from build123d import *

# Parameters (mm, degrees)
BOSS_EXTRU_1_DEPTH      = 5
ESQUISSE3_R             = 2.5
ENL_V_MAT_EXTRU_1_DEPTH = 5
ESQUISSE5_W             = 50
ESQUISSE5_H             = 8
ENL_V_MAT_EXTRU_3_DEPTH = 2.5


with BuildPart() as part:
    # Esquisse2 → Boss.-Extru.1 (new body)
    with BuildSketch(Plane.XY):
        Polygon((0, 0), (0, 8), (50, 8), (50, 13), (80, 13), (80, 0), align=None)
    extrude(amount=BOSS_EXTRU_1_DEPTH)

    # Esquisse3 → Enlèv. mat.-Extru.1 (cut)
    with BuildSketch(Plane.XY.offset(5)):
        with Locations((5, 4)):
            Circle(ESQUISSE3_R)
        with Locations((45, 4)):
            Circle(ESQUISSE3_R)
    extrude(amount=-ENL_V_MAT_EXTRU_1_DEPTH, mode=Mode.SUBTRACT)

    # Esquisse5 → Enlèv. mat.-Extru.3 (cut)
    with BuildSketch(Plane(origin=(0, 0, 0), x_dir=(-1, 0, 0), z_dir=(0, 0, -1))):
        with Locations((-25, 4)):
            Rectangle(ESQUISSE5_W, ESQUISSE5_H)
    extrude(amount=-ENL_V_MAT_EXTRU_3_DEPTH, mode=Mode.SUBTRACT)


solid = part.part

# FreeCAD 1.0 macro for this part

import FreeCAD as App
import Part
import Sketcher
from FreeCAD import Vector
Q = App.Units.Quantity

doc = App.newDocument("Part")
body = doc.addObject("PartDesign::Body", "Body")

sketch1 = body.newObject("Sketcher::SketchObject", "Sketch")
sketch1.AttachmentSupport = (doc.getObject("XY_Plane"), [""])
sketch1.MapMode = "FlatFace"
sketch1.addGeometry(Part.LineSegment(Vector(0, 8, 0), Vector(0, 0, 0)), False)
sketch1.addGeometry(Part.LineSegment(Vector(0, 0, 0), Vector(80, 0, 0)), False)
sketch1.addGeometry(Part.LineSegment(Vector(80, 0, 0), Vector(80, 13, 0)), False)
sketch1.addGeometry(Part.LineSegment(Vector(80, 13, 0), Vector(50, 13, 0)), False)
sketch1.addGeometry(Part.LineSegment(Vector(50, 13, 0), Vector(50, 8, 0)), False)
sketch1.addGeometry(Part.LineSegment(Vector(50, 8, 0), Vector(0, 8, 0)), False)
sketch1.addConstraint(Sketcher.Constraint("Coincident", 0, 2, 1, 1))
sketch1.addConstraint(Sketcher.Constraint("Coincident", 1, 2, 2, 1))
sketch1.addConstraint(Sketcher.Constraint("Coincident", 2, 2, 3, 1))
sketch1.addConstraint(Sketcher.Constraint("Coincident", 3, 2, 4, 1))
sketch1.addConstraint(Sketcher.Constraint("Coincident", 4, 2, 5, 1))
sketch1.addConstraint(Sketcher.Constraint("Coincident", 5, 2, 0, 1))
sketch1.addConstraint(Sketcher.Constraint("Vertical", 0))
sketch1.addConstraint(Sketcher.Constraint("Horizontal", 1))
sketch1.addConstraint(Sketcher.Constraint("Vertical", 2))
sketch1.addConstraint(Sketcher.Constraint("Horizontal", 3))
sketch1.addConstraint(Sketcher.Constraint("Vertical", 4))
sketch1.addConstraint(Sketcher.Constraint("Horizontal", 5))
sketch1.addConstraint(Sketcher.Constraint("Coincident", 0, 2, -1, 1))
sketch1.addConstraint(Sketcher.Constraint("DistanceX", 1, 1, 1, 2, Q("80 mm")))
sketch1.addConstraint(Sketcher.Constraint("DistanceX", 3, 2, 3, 1, Q("30 mm")))
sketch1.addConstraint(Sketcher.Constraint("DistanceY", 0, 2, 0, 1, Q("8 mm")))
sketch1.addConstraint(Sketcher.Constraint("DistanceY", 2, 1, 2, 2, Q("13 mm")))
pad1 = body.newObject("PartDesign::Pad", "Pad")
pad1.Profile = sketch1
pad1.Length = 5

sketch2 = body.newObject("Sketcher::SketchObject", "Sketch001")
sketch2.AttachmentSupport = (doc.getObject("XY_Plane"), [""])
sketch2.MapMode = "FlatFace"
sketch2.AttachmentOffset = App.Placement(Vector(0, 0, 5), App.Rotation())
sketch2.addGeometry(Part.Circle(Vector(5, 4, 0), Vector(0, 0, 1), 2.5), False)
sketch2.addGeometry(Part.Circle(Vector(45, 4, 0), Vector(0, 0, 1), 2.5), False)
sketch2.addConstraint(Sketcher.Constraint("Equal", 0, 1))
sketch2.addConstraint(Sketcher.Constraint("Horizontal", 0, 3, 1, 3))
sketch2.addConstraint(Sketcher.Constraint("Diameter", 0, Q("5 mm")))
sketch2.addConstraint(Sketcher.Constraint("DistanceX", -1, 1, 0, 3, Q("5 mm")))
sketch2.addConstraint(Sketcher.Constraint("DistanceY", -1, 1, 0, 3, Q("4 mm")))
sketch2.addConstraint(Sketcher.Constraint("DistanceX", -1, 1, 1, 3, Q("45 mm")))
pocket1 = body.newObject("PartDesign::Pocket", "Pocket")
pocket1.Profile = sketch2
pocket1.Length = 5

sketch3 = body.newObject("Sketcher::SketchObject", "Sketch002")
sketch3.AttachmentSupport = (doc.getObject("XY_Plane"), [""])
sketch3.MapMode = "FlatFace"
sketch3.addGeometry(Part.LineSegment(Vector(50, 8, 0), Vector(50, 0, 0)), False)
sketch3.addGeometry(Part.LineSegment(Vector(50, 0, 0), Vector(0, 0, 0)), False)
sketch3.addGeometry(Part.LineSegment(Vector(0, 0, 0), Vector(0, 8, 0)), False)
sketch3.addGeometry(Part.LineSegment(Vector(0, 8, 0), Vector(50, 8, 0)), False)
sketch3.addConstraint(Sketcher.Constraint("Coincident", 0, 2, 1, 1))
sketch3.addConstraint(Sketcher.Constraint("Coincident", 1, 2, 2, 1))
sketch3.addConstraint(Sketcher.Constraint("Coincident", 2, 2, 3, 1))
sketch3.addConstraint(Sketcher.Constraint("Coincident", 3, 2, 0, 1))
sketch3.addConstraint(Sketcher.Constraint("Vertical", 0))
sketch3.addConstraint(Sketcher.Constraint("Horizontal", 1))
sketch3.addConstraint(Sketcher.Constraint("Vertical", 2))
sketch3.addConstraint(Sketcher.Constraint("Horizontal", 3))
sketch3.addConstraint(Sketcher.Constraint("Coincident", 1, 2, -1, 1))
sketch3.addConstraint(Sketcher.Constraint("DistanceX", 1, 2, 1, 1, Q("50 mm")))
sketch3.addConstraint(Sketcher.Constraint("DistanceY", 0, 2, 0, 1, Q("8 mm")))
pocket2 = body.newObject("PartDesign::Pocket", "Pocket001")
pocket2.Profile = sketch3
pocket2.Length = 2.5
pocket2.Reversed = True

doc.recompute()
